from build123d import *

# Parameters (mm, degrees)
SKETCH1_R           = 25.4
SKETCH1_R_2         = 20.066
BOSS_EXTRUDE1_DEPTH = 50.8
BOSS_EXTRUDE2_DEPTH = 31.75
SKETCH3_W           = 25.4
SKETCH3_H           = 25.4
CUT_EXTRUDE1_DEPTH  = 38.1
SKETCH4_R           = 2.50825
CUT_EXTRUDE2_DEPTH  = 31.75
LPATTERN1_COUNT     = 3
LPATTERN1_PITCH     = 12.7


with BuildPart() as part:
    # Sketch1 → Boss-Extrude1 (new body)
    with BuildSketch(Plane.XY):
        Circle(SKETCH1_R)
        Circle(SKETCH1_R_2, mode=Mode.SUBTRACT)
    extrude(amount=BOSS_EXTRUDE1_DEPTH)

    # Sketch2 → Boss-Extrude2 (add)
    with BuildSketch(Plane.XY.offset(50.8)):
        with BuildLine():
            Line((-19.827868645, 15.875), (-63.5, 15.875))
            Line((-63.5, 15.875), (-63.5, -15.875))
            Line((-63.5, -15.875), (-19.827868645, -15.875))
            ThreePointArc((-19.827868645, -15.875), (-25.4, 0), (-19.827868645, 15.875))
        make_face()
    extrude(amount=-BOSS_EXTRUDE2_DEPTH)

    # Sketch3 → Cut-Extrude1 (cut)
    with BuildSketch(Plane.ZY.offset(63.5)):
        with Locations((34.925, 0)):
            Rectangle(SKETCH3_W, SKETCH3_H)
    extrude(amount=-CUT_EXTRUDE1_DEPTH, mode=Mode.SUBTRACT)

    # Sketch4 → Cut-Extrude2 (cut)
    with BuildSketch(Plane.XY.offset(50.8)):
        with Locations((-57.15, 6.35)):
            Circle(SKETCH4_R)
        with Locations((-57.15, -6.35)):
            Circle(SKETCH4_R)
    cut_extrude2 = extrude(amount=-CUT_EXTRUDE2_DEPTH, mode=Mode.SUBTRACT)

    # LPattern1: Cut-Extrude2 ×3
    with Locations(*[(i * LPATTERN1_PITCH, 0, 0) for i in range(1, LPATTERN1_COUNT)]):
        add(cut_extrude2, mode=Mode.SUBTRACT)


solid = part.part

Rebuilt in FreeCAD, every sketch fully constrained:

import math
import FreeCAD as App
import Part
import Sketcher

V = App.Vector
Q = App.Units.Quantity

doc = App.newDocument("Part")
params = doc.addObject("Spreadsheet::Sheet", "Params")
for row, (alias, value) in enumerate([
    ("sketch1_diameter", "2 in"),
    ("sketch1_diameter2", "1.58 in"),
    ("pad1_length", "2 in"),
    ("sketch2_radius", "1 in"),
    ("sketch2_height", "1.25 in"),
    ("pad2_length", "1.25 in"),
    ("sketch3_width", "1 in"),
    ("pocket1_length", "1.5 in"),
    ("pocket2_length", "1.25 in"),
    ("linearpattern_pitch", "0.5 in"),
], start=1):
    params.set(f"A{row}", alias)
    params.set(f"B{row}", "=" + value)
    params.setAlias(f"B{row}", alias)

body = doc.addObject("PartDesign::Body", "Body")

# Sketch on XY plane
sketch1 = body.newObject("Sketcher::SketchObject", "Sketch")
sketch1.AttachmentSupport = (doc.getObject("XY_Plane"), [""])
sketch1.MapMode = "FlatFace"
sketch1.addGeometry(Part.Circle(V(0, 0, 0), V(0, 0, 1), 25), False)
sketch1.addGeometry(Part.Circle(V(0, 0, 0), V(0, 0, 1), 20), False)
sketch1.addConstraint(Sketcher.Constraint("Coincident", 0, 3, -1, 1))
sketch1.addConstraint(Sketcher.Constraint("Coincident", 1, 3, -1, 1))
sketch1.addConstraint(Sketcher.Constraint("Diameter", 0, Q("2 in")))
sketch1.addConstraint(Sketcher.Constraint("Diameter", 1, Q("1.58 in")))
sketch1.setExpression("Constraints[2]", "Params.sketch1_diameter")
sketch1.setExpression("Constraints[3]", "Params.sketch1_diameter2")
pad1 = body.newObject("PartDesign::Pad", "Pad")
pad1.Profile = sketch1
pad1.setExpression("Length", "Params.pad1_length")

# Sketch on XY plane
sketch2 = body.newObject("Sketcher::SketchObject", "Sketch001")
sketch2.AttachmentSupport = (doc.getObject("XY_Plane"), [""])
sketch2.MapMode = "FlatFace"
sketch2.AttachmentOffset = App.Placement(V(0, 0, 2 * 25.4), App.Rotation())
sketch2.addGeometry(Part.LineSegment(V(-20, 16, 0), V(-64, 16, 0)), False)
sketch2.addGeometry(Part.LineSegment(V(-64, 16, 0), V(-64, -16, 0)), False)
sketch2.addGeometry(Part.LineSegment(V(-64, -16, 0), V(-20, -16, 0)), False)
sketch2.addGeometry(Part.ArcOfCircle(Part.Circle(V(0, 0, 0), V(0, 0, 1), 25), math.radians(141), math.radians(219)), False)
sketch2.addConstraint(Sketcher.Constraint("Coincident", 0, 2, 1, 1))
sketch2.addConstraint(Sketcher.Constraint("Coincident", 1, 2, 2, 1))
sketch2.addConstraint(Sketcher.Constraint("Coincident", 2, 2, 3, 2))
sketch2.addConstraint(Sketcher.Constraint("Coincident", 3, 1, 0, 1))
sketch2.addConstraint(Sketcher.Constraint("Horizontal", 0))
sketch2.addConstraint(Sketcher.Constraint("Vertical", 1))
sketch2.addConstraint(Sketcher.Constraint("Horizontal", 2))
sketch2.addConstraint(Sketcher.Constraint("Coincident", 3, 3, -1, 1))
sketch2.addConstraint(Sketcher.Constraint("Vertical", 2, 2, 3, 1))
sketch2.addConstraint(Sketcher.Constraint("Radius", 3, Q("1 in")))
sketch2.addConstraint(Sketcher.Constraint("DistanceY", 1, 2, 1, 1, Q("1.25 in")))
sketch2.addConstraint(Sketcher.Constraint("DistanceX", 0, 2, -1, 1, Q("2.5 in")))
sketch2.setExpression("Constraints[9]", "Params.sketch2_radius")
sketch2.setExpression("Constraints[10]", "Params.sketch2_height")
pad2 = body.newObject("PartDesign::Pad", "Pad001")
pad2.Profile = sketch2
pad2.setExpression("Length", "Params.pad2_length")
pad2.Reversed = True

# Sketch on YZ plane
sketch3 = body.newObject("Sketcher::SketchObject", "Sketch002")
sketch3.AttachmentSupport = (doc.getObject("YZ_Plane"), [""])
sketch3.MapMode = "FlatFace"
sketch3.AttachmentOffset = App.Placement(V(0, 0, -2.5 * 25.4), App.Rotation())
sketch3.addGeometry(Part.LineSegment(V(13, 22, 0), V(-13, 22, 0)), False)
sketch3.addGeometry(Part.LineSegment(V(-13, 22, 0), V(-13, 48, 0)), False)
sketch3.addGeometry(Part.LineSegment(V(-13, 48, 0), V(13, 48, 0)), False)
sketch3.addGeometry(Part.LineSegment(V(13, 48, 0), V(13, 22, 0)), False)
sketch3.addConstraint(Sketcher.Constraint("Coincident", 0, 2, 1, 1))
sketch3.addConstraint(Sketcher.Constraint("Coincident", 1, 2, 2, 1))
sketch3.addConstraint(Sketcher.Constraint("Coincident", 2, 2, 3, 1))
sketch3.addConstraint(Sketcher.Constraint("Coincident", 3, 2, 0, 1))
sketch3.addConstraint(Sketcher.Constraint("Horizontal", 0))
sketch3.addConstraint(Sketcher.Constraint("Vertical", 1))
sketch3.addConstraint(Sketcher.Constraint("Horizontal", 2))
sketch3.addConstraint(Sketcher.Constraint("Vertical", 3))
sketch3.addConstraint(Sketcher.Constraint("Equal", 2, 1))
sketch3.addConstraint(Sketcher.Constraint("DistanceX", 0, 2, 0, 1, Q("1 in")))
sketch3.addConstraint(Sketcher.Constraint("DistanceX", 0, 2, -1, 1, Q("0.5 in")))
sketch3.addConstraint(Sketcher.Constraint("DistanceY", -1, 1, 0, 2, Q("0.875 in")))
sketch3.setExpression("Constraints[9]", "Params.sketch3_width")
pocket1 = body.newObject("PartDesign::Pocket", "Pocket")
pocket1.Profile = sketch3
pocket1.setExpression("Length", "Params.pocket1_length")
pocket1.Reversed = True

# Sketch on XY plane
sketch4 = body.newObject("Sketcher::SketchObject", "Sketch003")
sketch4.AttachmentSupport = (doc.getObject("XY_Plane"), [""])
sketch4.MapMode = "FlatFace"
sketch4.AttachmentOffset = App.Placement(V(0, 0, 2 * 25.4), App.Rotation())
sketch4.addGeometry(Part.Circle(V(-57.1, 6.3, 0), V(0, 0, 1), 2.5), False)
sketch4.addGeometry(Part.Circle(V(-57.1, -6.3, 0), V(0, 0, 1), 2.5), False)
sketch4.addConstraint(Sketcher.Constraint("Equal", 0, 1))
sketch4.addConstraint(Sketcher.Constraint("Symmetric", 0, 3, 1, 3, -1))
sketch4.addConstraint(Sketcher.Constraint("Diameter", 0, Q("0.1975 in")))
sketch4.addConstraint(Sketcher.Constraint("DistanceY", 1, 3, 0, 3, Q("0.5 in")))
sketch4.addConstraint(Sketcher.Constraint("DistanceX", 0, 3, -1, 1, Q("2.25 in")))
pocket2 = body.newObject("PartDesign::Pocket", "Pocket001")
pocket2.Profile = sketch4
pocket2.setExpression("Length", "Params.pocket2_length")
doc.recompute()

linearpattern = body.newObject("PartDesign::LinearPattern", "LinearPattern")
linearpattern.Originals = [pocket2]
linearpattern.Direction = (doc.getObject("X_Axis"), [""])
linearpattern.Mode = "offset"
linearpattern.setExpression("Offset", "Params.linearpattern_pitch")
linearpattern.Occurrences = 3
body.Tip = linearpattern

doc.recompute()
